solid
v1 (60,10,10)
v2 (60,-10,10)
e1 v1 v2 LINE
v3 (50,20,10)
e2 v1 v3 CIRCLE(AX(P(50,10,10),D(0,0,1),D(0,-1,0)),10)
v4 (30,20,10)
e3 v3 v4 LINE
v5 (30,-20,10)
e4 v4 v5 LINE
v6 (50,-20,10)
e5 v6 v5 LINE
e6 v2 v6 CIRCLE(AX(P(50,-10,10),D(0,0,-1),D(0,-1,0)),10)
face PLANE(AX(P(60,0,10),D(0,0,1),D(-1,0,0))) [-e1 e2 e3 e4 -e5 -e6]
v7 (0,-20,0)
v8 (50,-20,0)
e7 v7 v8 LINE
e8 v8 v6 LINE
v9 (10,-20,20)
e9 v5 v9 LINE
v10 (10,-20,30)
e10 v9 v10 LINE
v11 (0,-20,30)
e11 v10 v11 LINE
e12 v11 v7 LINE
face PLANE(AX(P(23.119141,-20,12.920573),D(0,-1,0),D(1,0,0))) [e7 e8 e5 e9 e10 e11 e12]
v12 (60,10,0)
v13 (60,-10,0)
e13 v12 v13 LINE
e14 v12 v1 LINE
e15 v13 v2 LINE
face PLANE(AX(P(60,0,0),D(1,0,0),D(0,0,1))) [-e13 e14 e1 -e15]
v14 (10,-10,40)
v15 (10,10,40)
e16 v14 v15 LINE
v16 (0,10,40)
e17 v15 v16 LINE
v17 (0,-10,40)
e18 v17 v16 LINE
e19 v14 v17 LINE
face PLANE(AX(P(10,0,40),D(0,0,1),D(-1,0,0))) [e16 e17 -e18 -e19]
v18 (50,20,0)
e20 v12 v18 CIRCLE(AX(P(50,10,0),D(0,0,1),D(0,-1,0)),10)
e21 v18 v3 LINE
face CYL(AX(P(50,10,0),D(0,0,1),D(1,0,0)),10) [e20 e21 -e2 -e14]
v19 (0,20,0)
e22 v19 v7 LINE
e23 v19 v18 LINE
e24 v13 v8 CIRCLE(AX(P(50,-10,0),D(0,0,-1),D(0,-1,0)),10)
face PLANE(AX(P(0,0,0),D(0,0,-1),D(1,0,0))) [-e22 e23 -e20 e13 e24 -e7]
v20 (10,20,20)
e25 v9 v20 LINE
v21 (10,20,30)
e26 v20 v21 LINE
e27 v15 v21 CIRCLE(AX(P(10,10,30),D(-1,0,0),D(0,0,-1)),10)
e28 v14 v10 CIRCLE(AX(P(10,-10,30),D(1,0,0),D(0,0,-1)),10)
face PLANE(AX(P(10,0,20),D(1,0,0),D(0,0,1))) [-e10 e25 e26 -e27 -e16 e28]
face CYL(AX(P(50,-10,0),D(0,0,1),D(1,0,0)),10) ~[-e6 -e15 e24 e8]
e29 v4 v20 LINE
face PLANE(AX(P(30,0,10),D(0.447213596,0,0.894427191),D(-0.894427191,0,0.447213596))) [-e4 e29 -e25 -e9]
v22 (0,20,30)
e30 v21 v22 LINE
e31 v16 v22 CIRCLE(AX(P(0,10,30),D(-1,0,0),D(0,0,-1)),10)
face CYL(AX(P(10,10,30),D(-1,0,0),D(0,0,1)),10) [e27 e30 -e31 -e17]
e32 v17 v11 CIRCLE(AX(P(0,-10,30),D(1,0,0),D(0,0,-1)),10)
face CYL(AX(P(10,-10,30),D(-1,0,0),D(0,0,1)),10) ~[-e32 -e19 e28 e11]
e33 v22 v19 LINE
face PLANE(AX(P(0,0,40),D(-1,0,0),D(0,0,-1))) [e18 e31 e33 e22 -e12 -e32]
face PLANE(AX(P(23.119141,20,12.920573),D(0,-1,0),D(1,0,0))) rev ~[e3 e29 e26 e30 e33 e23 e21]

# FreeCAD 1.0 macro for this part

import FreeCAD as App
import Part
import Sketcher
from FreeCAD import Vector
Q = App.Units.Quantity


def edges_at(feature, points):
    """Names of the edges that pass closest to the given points."""
    edges = feature.Shape.Edges
    near = lambda p: min(range(len(edges)), key=lambda i: edges[i].distToShape(Part.Vertex(*p))[0])
    return sorted({f"Edge{near(p) + 1}" for p in points})


def add_polygon(sketch, points):
    """Adds a closed chain of lines whose ends are joined by coincident constraints."""
    first, n = sketch.GeometryCount, len(points)
    for a, b in zip(points, points[1:] + points[:1]):
        sketch.addGeometry(Part.LineSegment(App.Vector(*a, 0), App.Vector(*b, 0)), False)
    for i in range(n):
        sketch.addConstraint(Sketcher.Constraint("Coincident", first + i, 2, first + (i + 1) % n, 1))

doc = App.newDocument("Part")
body = doc.addObject("PartDesign::Body", "Body")

# Sketch on XZ plane
sketch1 = doc.addObject("Sketcher::SketchObject", "Sketch")
body.addObject(sketch1)
sketch1.AttachmentSupport = (doc.XZ_Plane, [""])
sketch1.MapMode = "FlatFace"
add_polygon(sketch1, [(0, 40), (0, 0), (60, 0), (60, 10), (30, 10), (10, 20), (10, 40)])  # lines 0-6
sketch1.addConstraint([
    Sketcher.Constraint("Vertical", 0),
    Sketcher.Constraint("Horizontal", 1),
    Sketcher.Constraint("Vertical", 2),
    Sketcher.Constraint("Horizontal", 3),
    Sketcher.Constraint("Vertical", 5),
    Sketcher.Constraint("Horizontal", 6),
    Sketcher.Constraint("Coincident", 0, 2, -1, 1),
    Sketcher.Constraint("Equal", 6, 2),
    Sketcher.Constraint("DistanceX", 1, 1, 1, 2, Q("60 mm")),
    Sketcher.Constraint("DistanceX", 3, 2, 3, 1, Q("30 mm")),
    Sketcher.Constraint("DistanceX", 6, 2, 6, 1, Q("10 mm")),
    Sketcher.Constraint("DistanceY", 0, 2, 0, 1, Q("40 mm")),
    Sketcher.Constraint("DistanceY", 5, 1, 5, 2, Q("20 mm")),
])
pad1 = doc.addObject("PartDesign::Pad", "Pad")
body.addObject(pad1)
pad1.Profile = sketch1
pad1.Length = 40
pad1.Midplane = True
doc.recompute()

fillet = doc.addObject("PartDesign::Fillet", "Fillet")
body.addObject(fillet)
fillet.Base = (pad1, edges_at(pad1, [
    (5, -20, 40),
    (5, 20, 40),
    (60, -20, 5),
    (60, 20, 5),
]))
fillet.Radius = 10

doc.recompute()
